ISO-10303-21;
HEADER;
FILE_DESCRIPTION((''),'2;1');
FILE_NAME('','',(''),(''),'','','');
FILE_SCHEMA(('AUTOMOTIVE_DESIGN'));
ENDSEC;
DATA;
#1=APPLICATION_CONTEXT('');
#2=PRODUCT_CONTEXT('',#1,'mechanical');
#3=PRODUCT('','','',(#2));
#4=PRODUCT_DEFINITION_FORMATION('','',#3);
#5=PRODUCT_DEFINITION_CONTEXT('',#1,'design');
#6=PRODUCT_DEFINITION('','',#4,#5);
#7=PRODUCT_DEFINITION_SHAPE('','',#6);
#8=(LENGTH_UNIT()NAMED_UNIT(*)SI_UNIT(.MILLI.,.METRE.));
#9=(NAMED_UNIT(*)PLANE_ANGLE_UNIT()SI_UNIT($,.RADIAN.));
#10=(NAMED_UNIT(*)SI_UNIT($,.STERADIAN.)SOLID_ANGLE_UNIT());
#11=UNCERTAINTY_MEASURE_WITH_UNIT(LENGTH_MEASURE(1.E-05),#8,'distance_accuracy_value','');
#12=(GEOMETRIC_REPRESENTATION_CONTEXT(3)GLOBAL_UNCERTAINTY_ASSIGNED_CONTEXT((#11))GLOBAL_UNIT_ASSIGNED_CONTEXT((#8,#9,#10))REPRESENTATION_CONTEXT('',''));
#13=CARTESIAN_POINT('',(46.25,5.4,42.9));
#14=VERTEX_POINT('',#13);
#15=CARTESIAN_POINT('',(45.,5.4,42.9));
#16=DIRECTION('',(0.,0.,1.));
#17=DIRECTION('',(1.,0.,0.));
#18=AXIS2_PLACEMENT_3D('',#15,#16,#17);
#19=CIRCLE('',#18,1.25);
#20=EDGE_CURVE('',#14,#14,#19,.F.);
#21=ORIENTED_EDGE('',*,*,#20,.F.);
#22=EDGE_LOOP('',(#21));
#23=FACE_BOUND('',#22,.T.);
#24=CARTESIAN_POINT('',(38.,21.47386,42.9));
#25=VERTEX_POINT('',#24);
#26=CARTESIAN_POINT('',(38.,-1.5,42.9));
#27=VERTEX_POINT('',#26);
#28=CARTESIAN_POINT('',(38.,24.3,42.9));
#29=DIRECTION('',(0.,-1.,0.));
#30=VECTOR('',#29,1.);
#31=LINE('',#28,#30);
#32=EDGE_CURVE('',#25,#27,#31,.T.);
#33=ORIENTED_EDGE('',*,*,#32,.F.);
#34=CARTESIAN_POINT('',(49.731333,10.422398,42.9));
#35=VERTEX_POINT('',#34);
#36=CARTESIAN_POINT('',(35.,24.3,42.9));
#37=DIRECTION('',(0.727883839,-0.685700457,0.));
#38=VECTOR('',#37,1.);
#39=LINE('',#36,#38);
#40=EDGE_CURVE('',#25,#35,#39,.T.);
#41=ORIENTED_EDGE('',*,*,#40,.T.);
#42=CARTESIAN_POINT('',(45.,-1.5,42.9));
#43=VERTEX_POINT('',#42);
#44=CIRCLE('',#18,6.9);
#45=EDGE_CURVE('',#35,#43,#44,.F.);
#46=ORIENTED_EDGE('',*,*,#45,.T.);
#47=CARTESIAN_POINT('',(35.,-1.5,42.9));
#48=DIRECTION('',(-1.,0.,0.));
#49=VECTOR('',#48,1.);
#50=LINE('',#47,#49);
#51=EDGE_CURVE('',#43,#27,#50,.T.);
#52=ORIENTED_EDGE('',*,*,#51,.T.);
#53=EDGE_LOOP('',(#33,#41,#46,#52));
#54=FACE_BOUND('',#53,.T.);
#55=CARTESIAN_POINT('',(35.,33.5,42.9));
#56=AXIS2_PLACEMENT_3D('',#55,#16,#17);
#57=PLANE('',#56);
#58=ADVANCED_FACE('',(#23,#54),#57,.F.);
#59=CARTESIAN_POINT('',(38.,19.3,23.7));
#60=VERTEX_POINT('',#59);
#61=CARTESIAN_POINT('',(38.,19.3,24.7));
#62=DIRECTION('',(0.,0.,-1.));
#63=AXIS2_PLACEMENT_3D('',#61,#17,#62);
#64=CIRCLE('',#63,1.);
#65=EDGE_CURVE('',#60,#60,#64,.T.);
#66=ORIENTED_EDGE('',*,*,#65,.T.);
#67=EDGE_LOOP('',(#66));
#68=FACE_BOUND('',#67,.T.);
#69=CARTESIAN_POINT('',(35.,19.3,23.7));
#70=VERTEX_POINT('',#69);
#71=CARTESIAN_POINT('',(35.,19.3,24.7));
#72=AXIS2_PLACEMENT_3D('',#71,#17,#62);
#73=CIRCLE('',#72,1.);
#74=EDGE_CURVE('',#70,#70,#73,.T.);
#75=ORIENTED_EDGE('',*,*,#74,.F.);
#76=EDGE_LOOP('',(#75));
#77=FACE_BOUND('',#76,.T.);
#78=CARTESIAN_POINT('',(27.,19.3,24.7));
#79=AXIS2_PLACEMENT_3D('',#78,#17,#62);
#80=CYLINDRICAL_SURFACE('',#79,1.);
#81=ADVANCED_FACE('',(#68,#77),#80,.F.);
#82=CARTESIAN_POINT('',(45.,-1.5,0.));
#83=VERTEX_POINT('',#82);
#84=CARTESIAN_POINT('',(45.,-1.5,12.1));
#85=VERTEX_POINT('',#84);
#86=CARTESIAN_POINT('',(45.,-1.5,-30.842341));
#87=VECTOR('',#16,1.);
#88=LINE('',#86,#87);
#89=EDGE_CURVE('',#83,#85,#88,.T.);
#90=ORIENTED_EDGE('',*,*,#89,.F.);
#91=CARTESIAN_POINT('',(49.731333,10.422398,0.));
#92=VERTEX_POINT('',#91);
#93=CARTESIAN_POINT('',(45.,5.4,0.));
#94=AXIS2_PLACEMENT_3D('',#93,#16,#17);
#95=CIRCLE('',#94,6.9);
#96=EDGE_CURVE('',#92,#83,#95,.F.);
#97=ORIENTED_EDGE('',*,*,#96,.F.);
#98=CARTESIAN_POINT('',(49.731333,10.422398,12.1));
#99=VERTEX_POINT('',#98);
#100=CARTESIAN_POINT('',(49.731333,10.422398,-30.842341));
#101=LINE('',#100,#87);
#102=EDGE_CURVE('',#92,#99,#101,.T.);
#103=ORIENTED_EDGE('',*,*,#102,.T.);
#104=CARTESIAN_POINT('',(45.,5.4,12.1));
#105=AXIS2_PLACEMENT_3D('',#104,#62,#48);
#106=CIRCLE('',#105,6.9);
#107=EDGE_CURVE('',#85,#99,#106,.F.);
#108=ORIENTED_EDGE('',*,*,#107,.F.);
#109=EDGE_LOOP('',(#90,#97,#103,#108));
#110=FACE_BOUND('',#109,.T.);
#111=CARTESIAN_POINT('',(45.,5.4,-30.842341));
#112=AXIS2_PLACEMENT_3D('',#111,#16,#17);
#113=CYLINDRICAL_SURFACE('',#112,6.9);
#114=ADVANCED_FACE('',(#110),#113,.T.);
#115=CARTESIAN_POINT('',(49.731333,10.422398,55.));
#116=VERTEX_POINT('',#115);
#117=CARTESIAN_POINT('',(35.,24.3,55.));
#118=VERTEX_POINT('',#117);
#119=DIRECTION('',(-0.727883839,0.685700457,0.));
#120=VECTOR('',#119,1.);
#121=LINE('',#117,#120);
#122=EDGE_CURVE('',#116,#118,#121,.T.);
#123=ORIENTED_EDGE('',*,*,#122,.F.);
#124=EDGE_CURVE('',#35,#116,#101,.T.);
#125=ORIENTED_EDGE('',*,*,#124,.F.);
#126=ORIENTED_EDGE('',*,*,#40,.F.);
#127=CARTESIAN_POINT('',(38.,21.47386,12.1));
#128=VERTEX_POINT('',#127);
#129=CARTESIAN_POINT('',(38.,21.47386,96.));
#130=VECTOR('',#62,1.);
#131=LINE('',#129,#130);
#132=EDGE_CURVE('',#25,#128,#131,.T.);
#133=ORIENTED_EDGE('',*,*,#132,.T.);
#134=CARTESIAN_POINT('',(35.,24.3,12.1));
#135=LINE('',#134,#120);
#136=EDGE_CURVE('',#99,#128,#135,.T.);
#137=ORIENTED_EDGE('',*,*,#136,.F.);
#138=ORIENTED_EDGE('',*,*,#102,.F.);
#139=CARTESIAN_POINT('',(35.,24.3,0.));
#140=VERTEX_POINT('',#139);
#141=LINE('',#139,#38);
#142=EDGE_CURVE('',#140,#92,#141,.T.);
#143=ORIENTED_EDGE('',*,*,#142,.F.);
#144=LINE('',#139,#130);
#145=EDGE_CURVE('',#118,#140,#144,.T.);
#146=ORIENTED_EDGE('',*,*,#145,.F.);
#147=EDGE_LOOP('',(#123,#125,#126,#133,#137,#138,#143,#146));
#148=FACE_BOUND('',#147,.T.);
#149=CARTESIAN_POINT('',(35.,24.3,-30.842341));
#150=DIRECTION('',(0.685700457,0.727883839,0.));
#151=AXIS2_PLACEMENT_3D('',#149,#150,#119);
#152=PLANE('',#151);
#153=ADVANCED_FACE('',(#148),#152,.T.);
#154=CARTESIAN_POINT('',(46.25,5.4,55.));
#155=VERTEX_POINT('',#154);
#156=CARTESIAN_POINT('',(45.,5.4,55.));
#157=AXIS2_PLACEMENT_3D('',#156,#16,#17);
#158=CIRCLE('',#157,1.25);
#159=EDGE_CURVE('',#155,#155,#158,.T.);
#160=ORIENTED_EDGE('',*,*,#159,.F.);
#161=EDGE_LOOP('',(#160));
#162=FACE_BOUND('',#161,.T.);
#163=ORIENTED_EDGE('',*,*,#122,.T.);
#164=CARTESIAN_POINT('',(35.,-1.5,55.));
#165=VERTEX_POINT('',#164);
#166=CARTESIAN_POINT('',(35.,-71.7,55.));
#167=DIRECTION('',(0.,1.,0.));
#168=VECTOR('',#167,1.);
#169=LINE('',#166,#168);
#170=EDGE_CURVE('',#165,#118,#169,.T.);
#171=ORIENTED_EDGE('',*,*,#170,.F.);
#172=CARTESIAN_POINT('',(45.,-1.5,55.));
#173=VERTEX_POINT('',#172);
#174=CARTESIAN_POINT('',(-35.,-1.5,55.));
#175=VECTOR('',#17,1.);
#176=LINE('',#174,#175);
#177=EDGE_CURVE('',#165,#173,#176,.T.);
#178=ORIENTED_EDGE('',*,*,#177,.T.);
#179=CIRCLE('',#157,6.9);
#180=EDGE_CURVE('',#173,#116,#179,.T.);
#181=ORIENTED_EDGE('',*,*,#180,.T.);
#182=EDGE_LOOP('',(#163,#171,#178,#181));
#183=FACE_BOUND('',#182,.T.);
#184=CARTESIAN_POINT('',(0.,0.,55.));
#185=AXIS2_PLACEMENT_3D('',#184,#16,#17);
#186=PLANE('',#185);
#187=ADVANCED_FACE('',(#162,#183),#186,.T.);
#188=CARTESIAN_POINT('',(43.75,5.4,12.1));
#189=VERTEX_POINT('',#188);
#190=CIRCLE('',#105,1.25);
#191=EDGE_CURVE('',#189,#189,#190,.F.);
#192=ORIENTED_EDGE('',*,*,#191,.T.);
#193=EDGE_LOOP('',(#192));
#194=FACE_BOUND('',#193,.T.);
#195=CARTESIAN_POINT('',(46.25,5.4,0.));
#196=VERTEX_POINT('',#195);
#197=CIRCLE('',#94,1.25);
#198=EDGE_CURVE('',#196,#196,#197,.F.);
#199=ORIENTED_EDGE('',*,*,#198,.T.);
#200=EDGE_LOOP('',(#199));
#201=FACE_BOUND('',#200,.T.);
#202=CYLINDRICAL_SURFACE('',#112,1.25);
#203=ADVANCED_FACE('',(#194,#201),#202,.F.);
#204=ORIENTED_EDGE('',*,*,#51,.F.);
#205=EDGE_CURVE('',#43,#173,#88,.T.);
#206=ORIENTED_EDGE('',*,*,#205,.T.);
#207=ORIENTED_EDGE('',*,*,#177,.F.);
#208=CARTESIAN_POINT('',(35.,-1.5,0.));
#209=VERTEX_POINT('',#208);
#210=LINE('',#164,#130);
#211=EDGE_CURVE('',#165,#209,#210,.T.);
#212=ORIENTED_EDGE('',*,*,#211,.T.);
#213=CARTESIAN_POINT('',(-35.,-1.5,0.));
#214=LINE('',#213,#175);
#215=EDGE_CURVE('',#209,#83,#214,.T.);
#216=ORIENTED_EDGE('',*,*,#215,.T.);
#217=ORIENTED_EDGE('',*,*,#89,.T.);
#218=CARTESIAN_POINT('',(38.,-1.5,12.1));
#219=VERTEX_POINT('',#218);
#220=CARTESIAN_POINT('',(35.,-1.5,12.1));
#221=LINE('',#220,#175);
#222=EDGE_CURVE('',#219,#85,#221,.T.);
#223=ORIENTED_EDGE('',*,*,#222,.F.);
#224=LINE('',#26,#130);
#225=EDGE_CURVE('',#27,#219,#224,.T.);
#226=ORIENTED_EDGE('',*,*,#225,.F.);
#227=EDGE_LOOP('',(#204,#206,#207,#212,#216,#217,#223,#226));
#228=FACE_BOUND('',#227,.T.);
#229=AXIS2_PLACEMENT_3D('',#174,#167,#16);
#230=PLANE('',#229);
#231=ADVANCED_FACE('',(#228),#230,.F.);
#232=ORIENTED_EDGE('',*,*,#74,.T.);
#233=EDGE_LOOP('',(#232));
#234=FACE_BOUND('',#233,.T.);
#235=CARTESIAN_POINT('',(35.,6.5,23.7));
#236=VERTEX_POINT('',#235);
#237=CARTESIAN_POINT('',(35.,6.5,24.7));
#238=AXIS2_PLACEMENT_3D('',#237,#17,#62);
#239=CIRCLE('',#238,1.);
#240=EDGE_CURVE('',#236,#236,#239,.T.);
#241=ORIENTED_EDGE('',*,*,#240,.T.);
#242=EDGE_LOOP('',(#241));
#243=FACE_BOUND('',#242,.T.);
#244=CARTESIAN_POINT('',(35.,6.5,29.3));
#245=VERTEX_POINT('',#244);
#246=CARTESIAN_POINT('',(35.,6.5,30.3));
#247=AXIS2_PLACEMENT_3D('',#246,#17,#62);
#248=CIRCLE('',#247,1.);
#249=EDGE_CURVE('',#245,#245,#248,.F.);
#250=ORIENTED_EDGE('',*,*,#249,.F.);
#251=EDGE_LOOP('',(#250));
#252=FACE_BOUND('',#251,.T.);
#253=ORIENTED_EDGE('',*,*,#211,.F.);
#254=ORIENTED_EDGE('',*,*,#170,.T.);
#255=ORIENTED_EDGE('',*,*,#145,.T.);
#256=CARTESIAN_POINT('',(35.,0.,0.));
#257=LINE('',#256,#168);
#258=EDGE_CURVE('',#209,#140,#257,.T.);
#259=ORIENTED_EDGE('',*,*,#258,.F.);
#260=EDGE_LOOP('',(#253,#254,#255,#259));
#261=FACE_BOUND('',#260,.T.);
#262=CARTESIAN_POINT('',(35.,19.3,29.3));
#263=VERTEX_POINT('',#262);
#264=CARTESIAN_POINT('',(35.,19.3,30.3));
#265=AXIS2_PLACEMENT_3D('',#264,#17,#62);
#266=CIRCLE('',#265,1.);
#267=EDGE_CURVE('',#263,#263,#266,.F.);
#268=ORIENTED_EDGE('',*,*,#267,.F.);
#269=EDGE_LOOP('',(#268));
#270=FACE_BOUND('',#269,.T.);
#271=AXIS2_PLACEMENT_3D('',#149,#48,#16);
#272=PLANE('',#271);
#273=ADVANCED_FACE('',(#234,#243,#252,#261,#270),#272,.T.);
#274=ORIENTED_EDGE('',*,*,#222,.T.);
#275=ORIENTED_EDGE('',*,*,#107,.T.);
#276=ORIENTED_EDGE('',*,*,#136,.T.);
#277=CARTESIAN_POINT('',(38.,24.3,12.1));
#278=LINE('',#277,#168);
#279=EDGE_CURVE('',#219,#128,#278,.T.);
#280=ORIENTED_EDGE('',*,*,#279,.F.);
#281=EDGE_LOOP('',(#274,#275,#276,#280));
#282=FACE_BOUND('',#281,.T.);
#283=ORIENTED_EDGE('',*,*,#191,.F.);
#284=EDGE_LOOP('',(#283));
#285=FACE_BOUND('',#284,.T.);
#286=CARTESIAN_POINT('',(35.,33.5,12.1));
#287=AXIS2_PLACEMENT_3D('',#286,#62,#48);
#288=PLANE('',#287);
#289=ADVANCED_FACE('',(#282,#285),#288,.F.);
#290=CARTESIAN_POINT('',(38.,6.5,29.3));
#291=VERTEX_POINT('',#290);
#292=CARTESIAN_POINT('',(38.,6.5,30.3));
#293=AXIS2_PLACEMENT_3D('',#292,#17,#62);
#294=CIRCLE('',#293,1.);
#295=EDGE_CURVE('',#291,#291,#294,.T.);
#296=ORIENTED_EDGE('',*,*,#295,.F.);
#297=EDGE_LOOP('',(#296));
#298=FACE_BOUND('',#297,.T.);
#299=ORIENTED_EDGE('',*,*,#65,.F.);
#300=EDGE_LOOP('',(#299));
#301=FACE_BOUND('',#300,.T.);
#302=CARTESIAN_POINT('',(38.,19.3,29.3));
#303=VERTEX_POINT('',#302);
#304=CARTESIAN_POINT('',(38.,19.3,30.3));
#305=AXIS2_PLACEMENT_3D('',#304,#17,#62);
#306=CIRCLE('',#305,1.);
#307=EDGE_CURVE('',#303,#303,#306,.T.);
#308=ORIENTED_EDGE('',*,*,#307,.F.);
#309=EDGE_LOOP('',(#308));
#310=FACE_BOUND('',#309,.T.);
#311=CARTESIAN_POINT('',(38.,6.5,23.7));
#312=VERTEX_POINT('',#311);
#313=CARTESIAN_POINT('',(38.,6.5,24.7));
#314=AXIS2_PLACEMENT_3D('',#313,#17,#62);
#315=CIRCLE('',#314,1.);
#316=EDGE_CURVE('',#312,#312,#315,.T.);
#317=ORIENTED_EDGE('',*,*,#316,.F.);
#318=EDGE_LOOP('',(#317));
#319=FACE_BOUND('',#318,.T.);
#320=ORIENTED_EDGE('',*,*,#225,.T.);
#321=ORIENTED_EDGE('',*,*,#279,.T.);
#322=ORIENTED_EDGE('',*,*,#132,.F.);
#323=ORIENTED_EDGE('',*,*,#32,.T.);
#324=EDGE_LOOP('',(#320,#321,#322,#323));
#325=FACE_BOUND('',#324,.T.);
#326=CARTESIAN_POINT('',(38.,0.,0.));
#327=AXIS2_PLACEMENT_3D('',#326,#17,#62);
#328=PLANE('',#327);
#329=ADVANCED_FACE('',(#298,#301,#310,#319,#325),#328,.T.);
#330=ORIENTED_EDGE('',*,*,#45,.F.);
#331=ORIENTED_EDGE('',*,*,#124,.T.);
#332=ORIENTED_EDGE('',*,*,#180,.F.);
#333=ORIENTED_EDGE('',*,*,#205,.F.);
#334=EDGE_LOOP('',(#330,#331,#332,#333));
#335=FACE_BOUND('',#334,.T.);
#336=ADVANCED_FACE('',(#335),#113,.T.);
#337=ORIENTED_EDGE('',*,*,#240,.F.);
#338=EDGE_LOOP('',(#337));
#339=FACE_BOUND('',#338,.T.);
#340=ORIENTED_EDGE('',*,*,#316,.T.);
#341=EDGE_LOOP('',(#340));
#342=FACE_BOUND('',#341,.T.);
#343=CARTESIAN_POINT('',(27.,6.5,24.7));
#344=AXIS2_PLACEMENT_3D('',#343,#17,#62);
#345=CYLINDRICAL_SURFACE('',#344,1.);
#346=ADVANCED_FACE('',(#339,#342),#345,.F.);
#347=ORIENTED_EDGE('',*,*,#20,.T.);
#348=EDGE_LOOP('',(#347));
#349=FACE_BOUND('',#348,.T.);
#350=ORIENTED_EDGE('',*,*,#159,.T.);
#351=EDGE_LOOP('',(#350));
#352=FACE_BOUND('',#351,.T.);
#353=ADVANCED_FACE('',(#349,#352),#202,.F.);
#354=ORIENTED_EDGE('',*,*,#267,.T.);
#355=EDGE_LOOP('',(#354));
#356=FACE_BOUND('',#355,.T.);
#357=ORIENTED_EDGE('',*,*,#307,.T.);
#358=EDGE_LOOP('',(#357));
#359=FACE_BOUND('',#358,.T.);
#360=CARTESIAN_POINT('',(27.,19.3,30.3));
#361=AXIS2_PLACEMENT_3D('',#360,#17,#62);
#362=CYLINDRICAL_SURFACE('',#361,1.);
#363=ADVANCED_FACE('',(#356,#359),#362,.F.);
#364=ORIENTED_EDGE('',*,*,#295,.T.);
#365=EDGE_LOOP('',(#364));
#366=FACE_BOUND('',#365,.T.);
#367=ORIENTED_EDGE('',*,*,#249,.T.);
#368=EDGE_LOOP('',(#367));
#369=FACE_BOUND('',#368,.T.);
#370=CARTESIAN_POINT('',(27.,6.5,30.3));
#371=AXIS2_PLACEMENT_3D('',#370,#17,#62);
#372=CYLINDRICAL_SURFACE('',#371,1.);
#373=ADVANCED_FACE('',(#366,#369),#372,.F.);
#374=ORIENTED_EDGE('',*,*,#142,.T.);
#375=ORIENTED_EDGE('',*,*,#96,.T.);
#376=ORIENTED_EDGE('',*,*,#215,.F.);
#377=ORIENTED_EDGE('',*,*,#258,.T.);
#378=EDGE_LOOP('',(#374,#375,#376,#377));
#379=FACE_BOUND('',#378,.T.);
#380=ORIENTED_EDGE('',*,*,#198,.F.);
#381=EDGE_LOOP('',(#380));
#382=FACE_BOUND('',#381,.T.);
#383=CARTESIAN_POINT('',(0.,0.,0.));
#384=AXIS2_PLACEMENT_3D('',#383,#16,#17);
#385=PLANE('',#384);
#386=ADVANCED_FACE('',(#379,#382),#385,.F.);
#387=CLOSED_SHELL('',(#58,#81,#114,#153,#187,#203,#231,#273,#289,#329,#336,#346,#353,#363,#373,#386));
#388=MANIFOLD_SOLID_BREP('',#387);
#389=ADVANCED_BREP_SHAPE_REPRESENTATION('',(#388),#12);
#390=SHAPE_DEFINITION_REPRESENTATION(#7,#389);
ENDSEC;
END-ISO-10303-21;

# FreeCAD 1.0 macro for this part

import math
import FreeCAD as App
import Part
import Sketcher


def edges_at(feature, points):
    """Names of the edges that pass closest to the given points."""
    edges = feature.Shape.Edges
    near = lambda p: min(range(len(edges)), key=lambda i: edges[i].distToShape(Part.Vertex(*p))[0])
    return sorted({f"Edge{near(p) + 1}" for p in points})

doc = App.newDocument("Part")
body = doc.addObject("PartDesign::Body", "Body")

sketch1 = doc.addObject("Sketcher::SketchObject", "Sketch")
body.addObject(sketch1)
sketch1.AttachmentSupport = (doc.XY_Plane, [""])
sketch1.MapMode = "FlatFace"
sketch1.addGeometry(Part.LineSegment(App.Vector(-35, 1.5, 0), App.Vector(-35, -1.5, 0)), False)
sketch1.addGeometry(Part.LineSegment(App.Vector(-35, -1.5, 0), App.Vector(35, -1.5, 0)), False)
sketch1.addGeometry(Part.LineSegment(App.Vector(35, -1.5, 0), App.Vector(35, 1.5, 0)), False)
sketch1.addGeometry(Part.LineSegment(App.Vector(35, 1.5, 0), App.Vector(-35, 1.5, 0)), False)
sketch1.addConstraint(Sketcher.Constraint("Coincident", 0, 2, 1, 1))
sketch1.addConstraint(Sketcher.Constraint("Coincident", 1, 2, 2, 1))
sketch1.addConstraint(Sketcher.Constraint("Coincident", 2, 2, 3, 1))
sketch1.addConstraint(Sketcher.Constraint("Coincident", 3, 2, 0, 1))
sketch1.addConstraint(Sketcher.Constraint("Vertical", 0))
sketch1.addConstraint(Sketcher.Constraint("Horizontal", 1))
sketch1.addConstraint(Sketcher.Constraint("Vertical", 2))
sketch1.addConstraint(Sketcher.Constraint("Horizontal", 3))
sketch1.addConstraint(Sketcher.Constraint("Symmetric", 0, 2, 2, 2, -1, 1))
sketch1.addConstraint(Sketcher.Constraint("DistanceX", 1, 1, 1, 2, 70.0))
sketch1.addConstraint(Sketcher.Constraint("DistanceY", 0, 2, 0, 1, 3.0))
pad1 = doc.addObject("PartDesign::Pad", "Pad")
body.addObject(pad1)
pad1.Profile = sketch1
pad1.Length = 55

sketch2 = doc.addObject("Sketcher::SketchObject", "Sketch001")
body.addObject(sketch2)
sketch2.AttachmentSupport = (doc.XZ_Plane, [""])
sketch2.MapMode = "FlatFace"
sketch2.AttachmentOffset = App.Placement(App.Vector(0, 0, -1.5), App.Rotation())
sketch2.addGeometry(Part.LineSegment(App.Vector(-35, 0, 0), App.Vector(-35, 2.5, 0)), False)
sketch2.addGeometry(Part.LineSegment(App.Vector(-35, 2.5, 0), App.Vector(35, 2.5, 0)), False)
sketch2.addGeometry(Part.LineSegment(App.Vector(35, 2.5, 0), App.Vector(35, 0, 0)), False)
sketch2.addGeometry(Part.LineSegment(App.Vector(35, 0, 0), App.Vector(-35, 0, 0)), False)
sketch2.addGeometry(Part.LineSegment(App.Vector(-35, 52.5, 0), App.Vector(-35, 55, 0)), False)
sketch2.addGeometry(Part.LineSegment(App.Vector(-35, 55, 0), App.Vector(35, 55, 0)), False)
sketch2.addGeometry(Part.LineSegment(App.Vector(35, 55, 0), App.Vector(35, 52.5, 0)), False)
sketch2.addGeometry(Part.LineSegment(App.Vector(35, 52.5, 0), App.Vector(-35, 52.5, 0)), False)
sketch2.addConstraint(Sketcher.Constraint("Coincident", 0, 2, 1, 1))
sketch2.addConstraint(Sketcher.Constraint("Coincident", 1, 2, 2, 1))
sketch2.addConstraint(Sketcher.Constraint("Coincident", 2, 2, 3, 1))
sketch2.addConstraint(Sketcher.Constraint("Coincident", 3, 2, 0, 1))
sketch2.addConstraint(Sketcher.Constraint("Coincident", 4, 2, 5, 1))
sketch2.addConstraint(Sketcher.Constraint("Coincident", 5, 2, 6, 1))
sketch2.addConstraint(Sketcher.Constraint("Coincident", 6, 2, 7, 1))
sketch2.addConstraint(Sketcher.Constraint("Coincident", 7, 2, 4, 1))
sketch2.addConstraint(Sketcher.Constraint("Vertical", 0))
sketch2.addConstraint(Sketcher.Constraint("Horizontal", 1))
sketch2.addConstraint(Sketcher.Constraint("Vertical", 2))
sketch2.addConstraint(Sketcher.Constraint("Horizontal", 3))
sketch2.addConstraint(Sketcher.Constraint("Vertical", 4))
sketch2.addConstraint(Sketcher.Constraint("Horizontal", 5))
sketch2.addConstraint(Sketcher.Constraint("Vertical", 6))
sketch2.addConstraint(Sketcher.Constraint("Horizontal", 7))
sketch2.addConstraint(Sketcher.Constraint("Symmetric", 2, 2, 3, 2, -1, 1))
sketch2.addConstraint(Sketcher.Constraint("Vertical", 3, 2, 4, 2))
sketch2.addConstraint(Sketcher.Constraint("Vertical", 2, 2, 5, 2))
sketch2.addConstraint(Sketcher.Constraint("Equal", 2, 4))
sketch2.addConstraint(Sketcher.Constraint("DistanceX", 1, 1, 1, 2, 70.0))
sketch2.addConstraint(Sketcher.Constraint("DistanceY", 0, 1, 0, 2, 2.5))
sketch2.addConstraint(Sketcher.Constraint("DistanceY", -1, 1, 4, 2, 55.0))
pad2 = doc.addObject("PartDesign::Pad", "Pad001")
body.addObject(pad2)
pad2.Profile = sketch2
pad2.Length = 22.8
pad2.Reversed = True

sketch3 = doc.addObject("Sketcher::SketchObject", "Sketch002")
body.addObject(sketch3)
sketch3.AttachmentSupport = (doc.XY_Plane, [""])
sketch3.MapMode = "FlatFace"
sketch3.AttachmentOffset = App.Placement(App.Vector(0, 0, 55), App.Rotation())
sketch3.addGeometry(Part.Circle(App.Vector(-24, 11.4, 0), App.Vector(0, 0, 1), 3.5), False)
sketch3.addConstraint(Sketcher.Constraint("Diameter", 0, 7.0))
sketch3.addConstraint(Sketcher.Constraint("DistanceX", 0, 3, -1, 1, 24.0))
sketch3.addConstraint(Sketcher.Constraint("DistanceY", -1, 1, 0, 3, 11.4))
pocket1 = doc.addObject("PartDesign::Pocket", "Pocket")
body.addObject(pocket1)
pocket1.Profile = sketch3
pocket1.Length = 84.8

sketch4 = doc.addObject("Sketcher::SketchObject", "Sketch003")
body.addObject(sketch4)
sketch4.AttachmentSupport = (doc.XZ_Plane, [""])
sketch4.MapMode = "FlatFace"
sketch4.AttachmentOffset = App.Placement(App.Vector(0, 0, -24.3), App.Rotation())
sketch4.addGeometry(Part.LineSegment(App.Vector(-15, 21.7, 0), App.Vector(-15, 33.3, 0)), False)
sketch4.addGeometry(Part.LineSegment(App.Vector(-15, 33.3, 0), App.Vector(1, 33.3, 0)), False)
sketch4.addGeometry(Part.LineSegment(App.Vector(1, 33.3, 0), App.Vector(1, 21.7, 0)), False)
sketch4.addGeometry(Part.LineSegment(App.Vector(1, 21.7, 0), App.Vector(-15, 21.7, 0)), False)
sketch4.addGeometry(Part.LineSegment(App.Vector(20, 21.7, 0), App.Vector(20, 33.3, 0)), False)
sketch4.addGeometry(Part.LineSegment(App.Vector(20, 33.3, 0), App.Vector(35, 33.3, 0)), False)
sketch4.addGeometry(Part.LineSegment(App.Vector(35, 33.3, 0), App.Vector(35, 21.7, 0)), False)
sketch4.addGeometry(Part.LineSegment(App.Vector(35, 21.7, 0), App.Vector(20, 21.7, 0)), False)
sketch4.addConstraint(Sketcher.Constraint("Coincident", 0, 2, 1, 1))
sketch4.addConstraint(Sketcher.Constraint("Coincident", 1, 2, 2, 1))
sketch4.addConstraint(Sketcher.Constraint("Coincident", 2, 2, 3, 1))
sketch4.addConstraint(Sketcher.Constraint("Coincident", 3, 2, 0, 1))
sketch4.addConstraint(Sketcher.Constraint("Coincident", 4, 2, 5, 1))
sketch4.addConstraint(Sketcher.Constraint("Coincident", 5, 2, 6, 1))
sketch4.addConstraint(Sketcher.Constraint("Coincident", 6, 2, 7, 1))
sketch4.addConstraint(Sketcher.Constraint("Coincident", 7, 2, 4, 1))
sketch4.addConstraint(Sketcher.Constraint("Vertical", 0))
sketch4.addConstraint(Sketcher.Constraint("Horizontal", 1))
sketch4.addConstraint(Sketcher.Constraint("Vertical", 2))
sketch4.addConstraint(Sketcher.Constraint("Horizontal", 3))
sketch4.addConstraint(Sketcher.Constraint("Vertical", 4))
sketch4.addConstraint(Sketcher.Constraint("Horizontal", 5))
sketch4.addConstraint(Sketcher.Constraint("Vertical", 6))
sketch4.addConstraint(Sketcher.Constraint("Horizontal", 7))
sketch4.addConstraint(Sketcher.Constraint("Horizontal", 1, 2, 4, 2))
sketch4.addConstraint(Sketcher.Constraint("Horizontal", 3, 2, 6, 2))
sketch4.addConstraint(Sketcher.Constraint("DistanceX", 1, 1, 1, 2, 16.0))
sketch4.addConstraint(Sketcher.Constraint("DistanceX", 5, 1, 5, 2, 15.0))
sketch4.addConstraint(Sketcher.Constraint("DistanceY", 0, 1, 0, 2, 11.6))
sketch4.addConstraint(Sketcher.Constraint("DistanceX", 0, 2, -1, 1, 15.0))
sketch4.addConstraint(Sketcher.Constraint("DistanceX", -1, 1, 4, 2, 20.0))
sketch4.addConstraint(Sketcher.Constraint("DistanceY", -1, 1, 0, 2, 33.3))
pad3 = doc.addObject("PartDesign::Pad", "Pad002")
body.addObject(pad3)
pad3.Profile = sketch4
pad3.Length = 22.8

sketch5 = doc.addObject("Sketcher::SketchObject", "Sketch004")
body.addObject(sketch5)
sketch5.AttachmentSupport = (doc.XZ_Plane, [""])
sketch5.MapMode = "FlatFace"
sketch5.AttachmentOffset = App.Placement(App.Vector(0, 0, -24.3), App.Rotation())
sketch5.addGeometry(Part.Circle(App.Vector(-12, 24.7, 0), App.Vector(0, 0, 1), 1), False)
sketch5.addGeometry(Part.Circle(App.Vector(23, 30.3, 0), App.Vector(0, 0, 1), 1), False)
sketch5.addGeometry(Part.Circle(App.Vector(-2, 24.7, 0), App.Vector(0, 0, 1), 1), False)
sketch5.addGeometry(Part.Circle(App.Vector(-2, 30.3, 0), App.Vector(0, 0, 1), 1), False)
sketch5.addGeometry(Part.Circle(App.Vector(-12, 30.3, 0), App.Vector(0, 0, 1), 1), False)
sketch5.addGeometry(Part.Circle(App.Vector(23, 24.7, 0), App.Vector(0, 0, 1), 1), False)
sketch5.addGeometry(Part.Circle(App.Vector(32, 24.7, 0), App.Vector(0, 0, 1), 1), False)
sketch5.addGeometry(Part.Circle(App.Vector(32, 30.3, 0), App.Vector(0, 0, 1), 1), False)
sketch5.addConstraint(Sketcher.Constraint("Equal", 0, 1))
sketch5.addConstraint(Sketcher.Constraint("Equal", 1, 2))
sketch5.addConstraint(Sketcher.Constraint("Equal", 2, 3))
sketch5.addConstraint(Sketcher.Constraint("Equal", 3, 4))
sketch5.addConstraint(Sketcher.Constraint("Equal", 4, 5))
sketch5.addConstraint(Sketcher.Constraint("Equal", 5, 6))
sketch5.addConstraint(Sketcher.Constraint("Equal", 6, 7))
sketch5.addConstraint(Sketcher.Constraint("Horizontal", 0, 3, 2, 3))
sketch5.addConstraint(Sketcher.Constraint("Horizontal", 1, 3, 3, 3))
sketch5.addConstraint(Sketcher.Constraint("Horizontal", 3, 3, 4, 3))
sketch5.addConstraint(Sketcher.Constraint("Horizontal", 2, 3, 5, 3))
sketch5.addConstraint(Sketcher.Constraint("Horizontal", 5, 3, 6, 3))
sketch5.addConstraint(Sketcher.Constraint("Horizontal", 4, 3, 7, 3))
sketch5.addConstraint(Sketcher.Constraint("Vertical", 2, 3, 3, 3))
sketch5.addConstraint(Sketcher.Constraint("Vertical", 0, 3, 4, 3))
sketch5.addConstraint(Sketcher.Constraint("Vertical", 1, 3, 5, 3))
sketch5.addConstraint(Sketcher.Constraint("Vertical", 6, 3, 7, 3))
sketch5.addConstraint(Sketcher.Constraint("Diameter", 0, 2.0))
sketch5.addConstraint(Sketcher.Constraint("DistanceX", 0, 3, -1, 1, 12.0))
sketch5.addConstraint(Sketcher.Constraint("DistanceX", -1, 1, 1, 3, 23.0))
sketch5.addConstraint(Sketcher.Constraint("DistanceX", 2, 3, -1, 1, 2.0))
sketch5.addConstraint(Sketcher.Constraint("DistanceX", -1, 1, 6, 3, 32.0))
sketch5.addConstraint(Sketcher.Constraint("DistanceY", -1, 1, 0, 3, 24.7))
sketch5.addConstraint(Sketcher.Constraint("DistanceY", -1, 1, 1, 3, 30.3))
pocket2 = doc.addObject("PartDesign::Pocket", "Pocket001")
body.addObject(pocket2)
pocket2.Profile = sketch5
pocket2.Length = 8
pocket2.Reversed = True

sketch6 = doc.addObject("Sketcher::SketchObject", "Sketch005")
body.addObject(sketch6)
sketch6.AttachmentSupport = (doc.YZ_Plane, [""])
sketch6.MapMode = "FlatFace"
sketch6.AttachmentOffset = App.Placement(App.Vector(0, 0, 35), App.Rotation())
sketch6.addGeometry(Part.Circle(App.Vector(19.3, 24.7, 0), App.Vector(0, 0, 1), 1), False)
sketch6.addGeometry(Part.Circle(App.Vector(19.3, 30.3, 0), App.Vector(0, 0, 1), 1), False)
sketch6.addGeometry(Part.Circle(App.Vector(6.5, 24.7, 0), App.Vector(0, 0, 1), 1), False)
sketch6.addGeometry(Part.Circle(App.Vector(6.5, 30.3, 0), App.Vector(0, 0, 1), 1), False)
sketch6.addConstraint(Sketcher.Constraint("Equal", 0, 1))
sketch6.addConstraint(Sketcher.Constraint("Equal", 1, 2))
sketch6.addConstraint(Sketcher.Constraint("Equal", 2, 3))
sketch6.addConstraint(Sketcher.Constraint("Horizontal", 0, 3, 2, 3))
sketch6.addConstraint(Sketcher.Constraint("Horizontal", 1, 3, 3, 3))
sketch6.addConstraint(Sketcher.Constraint("Vertical", 0, 3, 1, 3))
sketch6.addConstraint(Sketcher.Constraint("Vertical", 2, 3, 3, 3))
sketch6.addConstraint(Sketcher.Constraint("Diameter", 0, 2.0))
sketch6.addConstraint(Sketcher.Constraint("DistanceX", -1, 1, 0, 3, 19.3))
sketch6.addConstraint(Sketcher.Constraint("DistanceY", -1, 1, 0, 3, 24.7))
sketch6.addConstraint(Sketcher.Constraint("DistanceY", -1, 1, 1, 3, 30.3))
sketch6.addConstraint(Sketcher.Constraint("DistanceX", -1, 1, 2, 3, 6.5))
pocket3 = doc.addObject("PartDesign::Pocket", "Pocket002")
body.addObject(pocket3)
pocket3.Profile = sketch6
pocket3.Length = 8
doc.recompute()

fillet = doc.addObject("PartDesign::Fillet", "Fillet")
body.addObject(fillet)
fillet.Base = (pocket3, edges_at(pocket3, [(1, 1.5, 27.5), (-15, 1.5, 27.5), (20, 1.5, 27.5)]))
fillet.Radius = 5

sketch7 = doc.addObject("Sketcher::SketchObject", "Sketch006")
body.addObject(sketch7)
sketch7.AttachmentSupport = (doc.XY_Plane, [""])
sketch7.MapMode = "FlatFace"
sketch7.AttachmentOffset = App.Placement(App.Vector(0, 0, 55), App.Rotation())
sketch7.addGeometry(Part.LineSegment(App.Vector(-38.084434, 14.9, 0), App.Vector(-38.084434, 7.9, 0)), False)
sketch7.addGeometry(Part.LineSegment(App.Vector(-38.084434, 7.9, 0), App.Vector(-24, 7.9, 0)), False)
sketch7.addGeometry(Part.LineSegment(App.Vector(-24, 7.9, 0), App.Vector(-24, 14.9, 0)), False)
sketch7.addGeometry(Part.LineSegment(App.Vector(-24, 14.9, 0), App.Vector(-38.084434, 14.9, 0)), False)
sketch7.addConstraint(Sketcher.Constraint("Coincident", 0, 2, 1, 1))
sketch7.addConstraint(Sketcher.Constraint("Coincident", 1, 2, 2, 1))
sketch7.addConstraint(Sketcher.Constraint("Coincident", 2, 2, 3, 1))
sketch7.addConstraint(Sketcher.Constraint("Coincident", 3, 2, 0, 1))
sketch7.addConstraint(Sketcher.Constraint("Vertical", 0))
sketch7.addConstraint(Sketcher.Constraint("Horizontal", 1))
sketch7.addConstraint(Sketcher.Constraint("Vertical", 2))
sketch7.addConstraint(Sketcher.Constraint("Horizontal", 3))
sketch7.addConstraint(Sketcher.Constraint("DistanceY", 0, 2, 0, 1, 7.0))
sketch7.addConstraint(Sketcher.Constraint("DistanceX", 1, 2, -1, 1, 24.0))
sketch7.addConstraint(Sketcher.Constraint("DistanceY", -1, 1, 0, 2, 7.9))
sketch7.addConstraint(Sketcher.Constraint("DistanceX", 1, 1, 1, 2, 14.084434))
pocket4 = doc.addObject("PartDesign::Pocket", "Pocket003")
body.addObject(pocket4)
pocket4.Profile = sketch7
pocket4.Length = 66

sketch8 = doc.addObject("Sketcher::SketchObject", "Sketch007")
body.addObject(sketch8)
sketch8.AttachmentSupport = (doc.XY_Plane, [""])
sketch8.MapMode = "FlatFace"
sketch8.AttachmentOffset = App.Placement(App.Vector(0, 0, 55), App.Rotation())
sketch8.addGeometry(Part.LineSegment(App.Vector(49.731333, 10.422398, 0), App.Vector(35, 24.3, 0)), False)
sketch8.addGeometry(Part.LineSegment(App.Vector(35, 24.3, 0), App.Vector(35, -1.5, 0)), False)
sketch8.addGeometry(Part.LineSegment(App.Vector(35, -1.5, 0), App.Vector(45, -1.5, 0)), False)
sketch8.addGeometry(Part.ArcOfCircle(Part.Circle(App.Vector(45, 5.4, 0), App.Vector(0, 0, 1), 6.9), math.radians(-90), math.radians(46.709281)), False)
sketch8.addGeometry(Part.Circle(App.Vector(45, 5.4, 0), App.Vector(0, 0, 1), 1.25), False)
sketch8.addConstraint(Sketcher.Constraint("Coincident", 0, 2, 1, 1))
sketch8.addConstraint(Sketcher.Constraint("Coincident", 1, 2, 2, 1))
sketch8.addConstraint(Sketcher.Constraint("Tangent", 2, 2, 3, 1))
sketch8.addConstraint(Sketcher.Constraint("Tangent", 3, 2, 0, 1))
sketch8.addConstraint(Sketcher.Constraint("Vertical", 1))
sketch8.addConstraint(Sketcher.Constraint("Horizontal", 2))
sketch8.addConstraint(Sketcher.Constraint("Coincident", 4, 3, 3, 3))
sketch8.addConstraint(Sketcher.Constraint("Diameter", 4, 2.5))
sketch8.addConstraint(Sketcher.Constraint("Radius", 3, 6.9))
sketch8.addConstraint(Sketcher.Constraint("DistanceX", 2, 1, 2, 2, 10.0))
sketch8.addConstraint(Sketcher.Constraint("DistanceY", 1, 2, 1, 1, 25.8))
sketch8.addConstraint(Sketcher.Constraint("DistanceX", -1, 1, 3, 3, 45.0))
sketch8.addConstraint(Sketcher.Constraint("DistanceY", -1, 1, 3, 3, 5.4))
pad4 = doc.addObject("PartDesign::Pad", "Pad003")
body.addObject(pad4)
pad4.Profile = sketch8
pad4.Length = 55
pad4.Reversed = True

sketch9 = doc.addObject("Sketcher::SketchObject", "Sketch008")
body.addObject(sketch9)
sketch9.AttachmentSupport = (doc.XZ_Plane, [""])
sketch9.MapMode = "FlatFace"
sketch9.AttachmentOffset = App.Placement(App.Vector(0, 0, 1.5), App.Rotation())
sketch9.addGeometry(Part.LineSegment(App.Vector(35, 42.9, 0), App.Vector(35, 12.1, 0)), False)
sketch9.addGeometry(Part.LineSegment(App.Vector(35, 12.1, 0), App.Vector(54.222612, 12.1, 0)), False)
sketch9.addGeometry(Part.LineSegment(App.Vector(54.222612, 12.1, 0), App.Vector(54.222612, 42.9, 0)), False)
sketch9.addGeometry(Part.LineSegment(App.Vector(54.222612, 42.9, 0), App.Vector(35, 42.9, 0)), False)
sketch9.addConstraint(Sketcher.Constraint("Coincident", 0, 2, 1, 1))
sketch9.addConstraint(Sketcher.Constraint("Coincident", 1, 2, 2, 1))
sketch9.addConstraint(Sketcher.Constraint("Coincident", 2, 2, 3, 1))
sketch9.addConstraint(Sketcher.Constraint("Coincident", 3, 2, 0, 1))
sketch9.addConstraint(Sketcher.Constraint("Vertical", 0))
sketch9.addConstraint(Sketcher.Constraint("Horizontal", 1))
sketch9.addConstraint(Sketcher.Constraint("Vertical", 2))
sketch9.addConstraint(Sketcher.Constraint("Horizontal", 3))
sketch9.addConstraint(Sketcher.Constraint("DistanceY", 0, 2, 0, 1, 30.8))
sketch9.addConstraint(Sketcher.Constraint("DistanceX", -1, 1, 0, 2, 35.0))
sketch9.addConstraint(Sketcher.Constraint("DistanceY", -1, 1, 0, 2, 12.1))
sketch9.addConstraint(Sketcher.Constraint("DistanceX", 1, 1, 1, 2, 19.222612))
pocket5 = doc.addObject("PartDesign::Pocket", "Pocket004")
body.addObject(pocket5)
pocket5.Profile = sketch9
pocket5.Length = 35

sketch10 = doc.addObject("Sketcher::SketchObject", "Sketch009")
body.addObject(sketch10)
sketch10.AttachmentSupport = (doc.YZ_Plane, [""])
sketch10.MapMode = "FlatFace"
sketch10.AttachmentOffset = App.Placement(App.Vector(0, 0, 35), App.Rotation())
sketch10.addGeometry(Part.LineSegment(App.Vector(24.3, 42.9, 0), App.Vector(-1.5, 42.9, 0)), False)
sketch10.addGeometry(Part.LineSegment(App.Vector(-1.5, 42.9, 0), App.Vector(-1.5, 12.1, 0)), False)
sketch10.addGeometry(Part.LineSegment(App.Vector(-1.5, 12.1, 0), App.Vector(24.3, 12.1, 0)), False)
sketch10.addGeometry(Part.LineSegment(App.Vector(24.3, 12.1, 0), App.Vector(24.3, 42.9, 0)), False)
sketch10.addGeometry(Part.Circle(App.Vector(6.5, 30.3, 0), App.Vector(0, 0, 1), 1), False)
sketch10.addGeometry(Part.Circle(App.Vector(6.5, 24.7, 0), App.Vector(0, 0, 1), 1), False)
sketch10.addGeometry(Part.Circle(App.Vector(19.3, 30.3, 0), App.Vector(0, 0, 1), 1), False)
sketch10.addGeometry(Part.Circle(App.Vector(19.3, 24.7, 0), App.Vector(0, 0, 1), 1), False)
sketch10.addConstraint(Sketcher.Constraint("Coincident", 0, 2, 1, 1))
sketch10.addConstraint(Sketcher.Constraint("Coincident", 1, 2, 2, 1))
sketch10.addConstraint(Sketcher.Constraint("Coincident", 2, 2, 3, 1))
sketch10.addConstraint(Sketcher.Constraint("Coincident", 3, 2, 0, 1))
sketch10.addConstraint(Sketcher.Constraint("Horizontal", 0))
sketch10.addConstraint(Sketcher.Constraint("Vertical", 1))
sketch10.addConstraint(Sketcher.Constraint("Horizontal", 2))
sketch10.addConstraint(Sketcher.Constraint("Vertical", 3))
sketch10.addConstraint(Sketcher.Constraint("Equal", 4, 5))
sketch10.addConstraint(Sketcher.Constraint("Equal", 5, 6))
sketch10.addConstraint(Sketcher.Constraint("Equal", 6, 7))
sketch10.addConstraint(Sketcher.Constraint("Horizontal", 4, 3, 6, 3))
sketch10.addConstraint(Sketcher.Constraint("Horizontal", 5, 3, 7, 3))
sketch10.addConstraint(Sketcher.Constraint("Vertical", 4, 3, 5, 3))
sketch10.addConstraint(Sketcher.Constraint("Vertical", 6, 3, 7, 3))
sketch10.addConstraint(Sketcher.Constraint("Diameter", 4, 2.0))
sketch10.addConstraint(Sketcher.Constraint("DistanceX", 0, 2, 0, 1, 25.8))
sketch10.addConstraint(Sketcher.Constraint("DistanceY", 1, 2, 1, 1, 30.8))
sketch10.addConstraint(Sketcher.Constraint("DistanceX", 0, 2, 4, 3, 8.0))
sketch10.addConstraint(Sketcher.Constraint("DistanceX", 7, 3, 2, 2, 5.0))
sketch10.addConstraint(Sketcher.Constraint("DistanceX", -1, 1, 4, 3, 6.5))
sketch10.addConstraint(Sketcher.Constraint("DistanceY", -1, 1, 4, 3, 30.3))
sketch10.addConstraint(Sketcher.Constraint("DistanceY", -1, 1, 5, 3, 24.7))
sketch10.addConstraint(Sketcher.Constraint("DistanceY", -1, 1, 0, 2, 42.9))
pad5 = doc.addObject("PartDesign::Pad", "Pad004")
body.addObject(pad5)
pad5.Profile = sketch10
pad5.Length = 3

sketch11 = doc.addObject("Sketcher::SketchObject", "Sketch010")
body.addObject(sketch11)
sketch11.AttachmentSupport = (doc.XY_Plane, [""])
sketch11.MapMode = "FlatFace"
sketch11.addGeometry(Part.LineSegment(App.Vector(38, 21.47386, 0), App.Vector(35, 24.3, 0)), False)
sketch11.addGeometry(Part.LineSegment(App.Vector(35, 24.3, 0), App.Vector(37.538023, 25.511318, 0)), False)
sketch11.addGeometry(Part.LineSegment(App.Vector(37.538023, 25.511318, 0), App.Vector(40.585257, 23.898774, 0)), False)
sketch11.addGeometry(Part.LineSegment(App.Vector(40.585257, 23.898774, 0), App.Vector(38, 21.47386, 0)), False)
sketch11.addConstraint(Sketcher.Constraint("Coincident", 0, 2, 1, 1))
sketch11.addConstraint(Sketcher.Constraint("Coincident", 1, 2, 2, 1))
sketch11.addConstraint(Sketcher.Constraint("Coincident", 2, 2, 3, 1))
sketch11.addConstraint(Sketcher.Constraint("Coincident", 3, 2, 0, 1))
sketch11.addConstraint(Sketcher.Constraint("DistanceX", -1, 1, 0, 2, 35.0))
sketch11.addConstraint(Sketcher.Constraint("DistanceX", -1, 1, 3, 2, 38.0))
sketch11.addConstraint(Sketcher.Constraint("DistanceY", -1, 1, 0, 2, 24.3))
sketch11.addConstraint(Sketcher.Constraint("Distance", 1, 2.812268))
sketch11.addConstraint(Sketcher.Constraint("Distance", 3, 3.544539))
sketch11.addConstraint(Sketcher.Constraint("DistanceY", -1, 1, 1, 2, 25.511318))
sketch11.addConstraint(Sketcher.Constraint("DistanceY", -1, 1, 3, 2, 21.47386))
sketch11.addConstraint(Sketcher.Constraint("Distance", 2, 3.447598))
pocket6 = doc.addObject("PartDesign::Pocket", "Pocket005")
body.addObject(pocket6)
pocket6.Profile = sketch11
pocket6.Length = 96
pocket6.Reversed = True

sketch12 = doc.addObject("Sketcher::SketchObject", "Sketch011")
body.addObject(sketch12)
sketch12.AttachmentSupport = (doc.XZ_Plane, [""])
sketch12.MapMode = "FlatFace"
sketch12.AttachmentOffset = App.Placement(App.Vector(0, 0, -24.3), App.Rotation())
sketch12.addGeometry(Part.LineSegment(App.Vector(-54.735472, -18.087764, 0), App.Vector(-54.735472, 55, 0)), False)
sketch12.addGeometry(Part.LineSegment(App.Vector(-54.735472, 55, 0), App.Vector(35, 55, 0)), False)
sketch12.addGeometry(Part.LineSegment(App.Vector(35, 55, 0), App.Vector(35, -18.087764, 0)), False)
sketch12.addGeometry(Part.LineSegment(App.Vector(35, -18.087764, 0), App.Vector(-54.735472, -18.087764, 0)), False)
sketch12.addConstraint(Sketcher.Constraint("Coincident", 0, 2, 1, 1))
sketch12.addConstraint(Sketcher.Constraint("Coincident", 1, 2, 2, 1))
sketch12.addConstraint(Sketcher.Constraint("Coincident", 2, 2, 3, 1))
sketch12.addConstraint(Sketcher.Constraint("Coincident", 3, 2, 0, 1))
sketch12.addConstraint(Sketcher.Constraint("Vertical", 0))
sketch12.addConstraint(Sketcher.Constraint("Horizontal", 1))
sketch12.addConstraint(Sketcher.Constraint("Vertical", 2))
sketch12.addConstraint(Sketcher.Constraint("Horizontal", 3))
sketch12.addConstraint(Sketcher.Constraint("DistanceY", -1, 1, 0, 2, 55.0))
sketch12.addConstraint(Sketcher.Constraint("DistanceX", -1, 1, 1, 2, 35.0))
sketch12.addConstraint(Sketcher.Constraint("DistanceX", 1, 1, 1, 2, 89.735472))
sketch12.addConstraint(Sketcher.Constraint("DistanceY", 0, 1, 0, 2, 73.087764))
pocket7 = doc.addObject("PartDesign::Pocket", "Pocket006")
body.addObject(pocket7)
pocket7.Profile = sketch12
pocket7.Length = 96
pocket7.Reversed = True

doc.recompute()
